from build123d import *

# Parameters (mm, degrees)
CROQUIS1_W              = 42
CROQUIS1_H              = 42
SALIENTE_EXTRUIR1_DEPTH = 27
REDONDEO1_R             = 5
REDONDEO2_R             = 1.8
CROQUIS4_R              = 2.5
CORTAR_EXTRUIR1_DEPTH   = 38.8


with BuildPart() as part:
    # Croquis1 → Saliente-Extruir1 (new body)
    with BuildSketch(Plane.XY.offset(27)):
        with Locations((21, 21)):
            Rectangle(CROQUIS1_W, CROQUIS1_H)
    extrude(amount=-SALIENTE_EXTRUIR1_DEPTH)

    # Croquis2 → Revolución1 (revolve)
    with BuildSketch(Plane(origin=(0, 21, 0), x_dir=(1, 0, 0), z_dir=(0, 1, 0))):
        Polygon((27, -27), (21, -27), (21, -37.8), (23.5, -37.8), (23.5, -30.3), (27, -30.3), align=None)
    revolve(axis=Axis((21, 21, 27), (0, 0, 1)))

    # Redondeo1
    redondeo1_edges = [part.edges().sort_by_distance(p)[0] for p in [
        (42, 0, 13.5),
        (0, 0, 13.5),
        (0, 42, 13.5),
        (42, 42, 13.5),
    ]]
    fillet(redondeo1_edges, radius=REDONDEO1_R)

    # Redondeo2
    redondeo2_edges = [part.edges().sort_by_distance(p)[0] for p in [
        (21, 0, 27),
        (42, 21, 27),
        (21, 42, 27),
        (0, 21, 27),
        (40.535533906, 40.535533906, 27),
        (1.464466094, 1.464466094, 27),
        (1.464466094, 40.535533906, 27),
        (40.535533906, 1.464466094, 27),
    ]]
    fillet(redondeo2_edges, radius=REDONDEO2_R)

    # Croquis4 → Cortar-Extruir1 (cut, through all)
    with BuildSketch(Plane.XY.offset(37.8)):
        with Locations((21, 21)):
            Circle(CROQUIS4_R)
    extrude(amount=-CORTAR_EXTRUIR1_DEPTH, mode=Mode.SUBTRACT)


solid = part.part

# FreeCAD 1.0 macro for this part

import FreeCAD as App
import Part
import Sketcher
from FreeCAD import Vector


def edges_at(feature, points):
    """Names of the edges that pass closest to the given points."""
    edges = feature.Shape.Edges
    near = lambda p: min(range(len(edges)), key=lambda i: edges[i].distToShape(Part.Vertex(*p))[0])
    return sorted({f"Edge{near(p) + 1}" for p in points})

doc = App.newDocument("Part")
body = doc.addObject("PartDesign::Body", "Body")

sketch1 = doc.addObject("Sketcher::SketchObject", "Sketch")
body.addObject(sketch1)
sketch1.AttachmentSupport = (doc.XY_Plane, [""])
sketch1.MapMode = "FlatFace"
sketch1.AttachmentOffset = App.Placement(Vector(0, 0, 27), App.Rotation())
sketch1.addGeometry([
    Part.LineSegment(Vector(0, 42, 0), Vector(0, 0, 0)),
    Part.LineSegment(Vector(0, 0, 0), Vector(42, 0, 0)),
    Part.LineSegment(Vector(42, 0, 0), Vector(42, 42, 0)),
    Part.LineSegment(Vector(42, 42, 0), Vector(0, 42, 0)),
], False)
sketch1.addConstraint([
    Sketcher.Constraint("Coincident", 0, 2, 1, 1),
    Sketcher.Constraint("Coincident", 1, 2, 2, 1),
    Sketcher.Constraint("Coincident", 2, 2, 3, 1),
    Sketcher.Constraint("Coincident", 3, 2, 0, 1),
    Sketcher.Constraint("Vertical", 0),
    Sketcher.Constraint("Horizontal", 1),
    Sketcher.Constraint("Vertical", 2),
    Sketcher.Constraint("Horizontal", 3),
    Sketcher.Constraint("Coincident", 0, 2, -1, 1),
    Sketcher.Constraint("Equal", 3, 0),
    Sketcher.Constraint("DistanceX", 1, 1, 1, 2, 42.0),
])
pad1 = doc.addObject("PartDesign::Pad", "Pad")
body.addObject(pad1)
pad1.Profile = sketch1
pad1.Length = 27
pad1.Reversed = True

sketch2 = doc.addObject("Sketcher::SketchObject", "Sketch001")
body.addObject(sketch2)
sketch2.AttachmentSupport = (doc.XZ_Plane, [""])
sketch2.MapMode = "FlatFace"
sketch2.AttachmentOffset = App.Placement(Vector(0, 0, -21), App.Rotation())
sketch2.addGeometry([
    Part.LineSegment(Vector(27, 27, 0), Vector(21, 27, 0)),
    Part.LineSegment(Vector(21, 27, 0), Vector(21, 37.8, 0)),
    Part.LineSegment(Vector(21, 37.8, 0), Vector(23.5, 37.8, 0)),
    Part.LineSegment(Vector(23.5, 37.8, 0), Vector(23.5, 30.3, 0)),
    Part.LineSegment(Vector(23.5, 30.3, 0), Vector(27, 30.3, 0)),
    Part.LineSegment(Vector(27, 30.3, 0), Vector(27, 27, 0)),
], False)
sketch2.addGeometry(Part.LineSegment(Vector(21, 27, 0), Vector(21, 37.8, 0)), True)
sketch2.addConstraint([
    Sketcher.Constraint("Coincident", 0, 2, 1, 1),
    Sketcher.Constraint("Coincident", 1, 2, 2, 1),
    Sketcher.Constraint("Coincident", 2, 2, 3, 1),
    Sketcher.Constraint("Coincident", 3, 2, 4, 1),
    Sketcher.Constraint("Coincident", 4, 2, 5, 1),
    Sketcher.Constraint("Coincident", 5, 2, 0, 1),
    Sketcher.Constraint("Horizontal", 0),
    Sketcher.Constraint("Vertical", 1),
    Sketcher.Constraint("Horizontal", 2),
    Sketcher.Constraint("Vertical", 3),
    Sketcher.Constraint("Horizontal", 4),
    Sketcher.Constraint("Vertical", 5),
    Sketcher.Constraint("Vertical", 6),
    Sketcher.Constraint("Coincident", 6, 1, 0, 2),
    Sketcher.Constraint("Horizontal", 2, 2, 6, 2),
    Sketcher.Constraint("DistanceX", 0, 2, 0, 1, 6.0),
    Sketcher.Constraint("DistanceX", 2, 1, 2, 2, 2.5),
    Sketcher.Constraint("DistanceY", 1, 1, 1, 2, 10.8),
    Sketcher.Constraint("DistanceY", 3, 2, 3, 1, 7.5),
    Sketcher.Constraint("DistanceX", -1, 1, 0, 2, 21.0),
    Sketcher.Constraint("DistanceY", -1, 1, 0, 2, 27.0),
])
revolution = doc.addObject("PartDesign::Revolution", "Revolution")
body.addObject(revolution)
revolution.Profile = sketch2
revolution.ReferenceAxis = (sketch2, ["Axis0"])
revolution.Angle = 360
doc.recompute()

fillet = doc.addObject("PartDesign::Fillet", "Fillet")
body.addObject(fillet)
fillet.Base = (revolution, edges_at(revolution, [
    (42, 0, 13.5),
    (0, 0, 13.5),
    (0, 42, 13.5),
    (42, 42, 13.5),
]))
fillet.Radius = 5
doc.recompute()

fillet2 = doc.addObject("PartDesign::Fillet", "Fillet001")
body.addObject(fillet2)
fillet2.Base = (fillet, edges_at(fillet, [
    (21, 0, 27),
    (42, 21, 27),
    (21, 42, 27),
    (0, 21, 27),
    (40.536, 40.536, 27),
    (1.464, 1.464, 27),
    (1.464, 40.536, 27),
    (40.536, 1.464, 27),
]))
fillet2.Radius = 1.8

sketch3 = doc.addObject("Sketcher::SketchObject", "Sketch002")
body.addObject(sketch3)
sketch3.AttachmentSupport = (doc.XY_Plane, [""])
sketch3.MapMode = "FlatFace"
sketch3.AttachmentOffset = App.Placement(Vector(0, 0, 37.8), App.Rotation())
sketch3.addGeometry(Part.Circle(Vector(21, 21, 0), Vector(0, 0, 1), 2.5), False)
sketch3.addConstraint([
    Sketcher.Constraint("Diameter", 0, 5.0),
    Sketcher.Constraint("DistanceX", -1, 1, 0, 3, 21.0),
    Sketcher.Constraint("DistanceY", -1, 1, 0, 3, 21.0),
])
pocket1 = doc.addObject("PartDesign::Pocket", "Pocket")
body.addObject(pocket1)
pocket1.Profile = sketch3
pocket1.Type = "ThroughAll"

doc.recompute()
